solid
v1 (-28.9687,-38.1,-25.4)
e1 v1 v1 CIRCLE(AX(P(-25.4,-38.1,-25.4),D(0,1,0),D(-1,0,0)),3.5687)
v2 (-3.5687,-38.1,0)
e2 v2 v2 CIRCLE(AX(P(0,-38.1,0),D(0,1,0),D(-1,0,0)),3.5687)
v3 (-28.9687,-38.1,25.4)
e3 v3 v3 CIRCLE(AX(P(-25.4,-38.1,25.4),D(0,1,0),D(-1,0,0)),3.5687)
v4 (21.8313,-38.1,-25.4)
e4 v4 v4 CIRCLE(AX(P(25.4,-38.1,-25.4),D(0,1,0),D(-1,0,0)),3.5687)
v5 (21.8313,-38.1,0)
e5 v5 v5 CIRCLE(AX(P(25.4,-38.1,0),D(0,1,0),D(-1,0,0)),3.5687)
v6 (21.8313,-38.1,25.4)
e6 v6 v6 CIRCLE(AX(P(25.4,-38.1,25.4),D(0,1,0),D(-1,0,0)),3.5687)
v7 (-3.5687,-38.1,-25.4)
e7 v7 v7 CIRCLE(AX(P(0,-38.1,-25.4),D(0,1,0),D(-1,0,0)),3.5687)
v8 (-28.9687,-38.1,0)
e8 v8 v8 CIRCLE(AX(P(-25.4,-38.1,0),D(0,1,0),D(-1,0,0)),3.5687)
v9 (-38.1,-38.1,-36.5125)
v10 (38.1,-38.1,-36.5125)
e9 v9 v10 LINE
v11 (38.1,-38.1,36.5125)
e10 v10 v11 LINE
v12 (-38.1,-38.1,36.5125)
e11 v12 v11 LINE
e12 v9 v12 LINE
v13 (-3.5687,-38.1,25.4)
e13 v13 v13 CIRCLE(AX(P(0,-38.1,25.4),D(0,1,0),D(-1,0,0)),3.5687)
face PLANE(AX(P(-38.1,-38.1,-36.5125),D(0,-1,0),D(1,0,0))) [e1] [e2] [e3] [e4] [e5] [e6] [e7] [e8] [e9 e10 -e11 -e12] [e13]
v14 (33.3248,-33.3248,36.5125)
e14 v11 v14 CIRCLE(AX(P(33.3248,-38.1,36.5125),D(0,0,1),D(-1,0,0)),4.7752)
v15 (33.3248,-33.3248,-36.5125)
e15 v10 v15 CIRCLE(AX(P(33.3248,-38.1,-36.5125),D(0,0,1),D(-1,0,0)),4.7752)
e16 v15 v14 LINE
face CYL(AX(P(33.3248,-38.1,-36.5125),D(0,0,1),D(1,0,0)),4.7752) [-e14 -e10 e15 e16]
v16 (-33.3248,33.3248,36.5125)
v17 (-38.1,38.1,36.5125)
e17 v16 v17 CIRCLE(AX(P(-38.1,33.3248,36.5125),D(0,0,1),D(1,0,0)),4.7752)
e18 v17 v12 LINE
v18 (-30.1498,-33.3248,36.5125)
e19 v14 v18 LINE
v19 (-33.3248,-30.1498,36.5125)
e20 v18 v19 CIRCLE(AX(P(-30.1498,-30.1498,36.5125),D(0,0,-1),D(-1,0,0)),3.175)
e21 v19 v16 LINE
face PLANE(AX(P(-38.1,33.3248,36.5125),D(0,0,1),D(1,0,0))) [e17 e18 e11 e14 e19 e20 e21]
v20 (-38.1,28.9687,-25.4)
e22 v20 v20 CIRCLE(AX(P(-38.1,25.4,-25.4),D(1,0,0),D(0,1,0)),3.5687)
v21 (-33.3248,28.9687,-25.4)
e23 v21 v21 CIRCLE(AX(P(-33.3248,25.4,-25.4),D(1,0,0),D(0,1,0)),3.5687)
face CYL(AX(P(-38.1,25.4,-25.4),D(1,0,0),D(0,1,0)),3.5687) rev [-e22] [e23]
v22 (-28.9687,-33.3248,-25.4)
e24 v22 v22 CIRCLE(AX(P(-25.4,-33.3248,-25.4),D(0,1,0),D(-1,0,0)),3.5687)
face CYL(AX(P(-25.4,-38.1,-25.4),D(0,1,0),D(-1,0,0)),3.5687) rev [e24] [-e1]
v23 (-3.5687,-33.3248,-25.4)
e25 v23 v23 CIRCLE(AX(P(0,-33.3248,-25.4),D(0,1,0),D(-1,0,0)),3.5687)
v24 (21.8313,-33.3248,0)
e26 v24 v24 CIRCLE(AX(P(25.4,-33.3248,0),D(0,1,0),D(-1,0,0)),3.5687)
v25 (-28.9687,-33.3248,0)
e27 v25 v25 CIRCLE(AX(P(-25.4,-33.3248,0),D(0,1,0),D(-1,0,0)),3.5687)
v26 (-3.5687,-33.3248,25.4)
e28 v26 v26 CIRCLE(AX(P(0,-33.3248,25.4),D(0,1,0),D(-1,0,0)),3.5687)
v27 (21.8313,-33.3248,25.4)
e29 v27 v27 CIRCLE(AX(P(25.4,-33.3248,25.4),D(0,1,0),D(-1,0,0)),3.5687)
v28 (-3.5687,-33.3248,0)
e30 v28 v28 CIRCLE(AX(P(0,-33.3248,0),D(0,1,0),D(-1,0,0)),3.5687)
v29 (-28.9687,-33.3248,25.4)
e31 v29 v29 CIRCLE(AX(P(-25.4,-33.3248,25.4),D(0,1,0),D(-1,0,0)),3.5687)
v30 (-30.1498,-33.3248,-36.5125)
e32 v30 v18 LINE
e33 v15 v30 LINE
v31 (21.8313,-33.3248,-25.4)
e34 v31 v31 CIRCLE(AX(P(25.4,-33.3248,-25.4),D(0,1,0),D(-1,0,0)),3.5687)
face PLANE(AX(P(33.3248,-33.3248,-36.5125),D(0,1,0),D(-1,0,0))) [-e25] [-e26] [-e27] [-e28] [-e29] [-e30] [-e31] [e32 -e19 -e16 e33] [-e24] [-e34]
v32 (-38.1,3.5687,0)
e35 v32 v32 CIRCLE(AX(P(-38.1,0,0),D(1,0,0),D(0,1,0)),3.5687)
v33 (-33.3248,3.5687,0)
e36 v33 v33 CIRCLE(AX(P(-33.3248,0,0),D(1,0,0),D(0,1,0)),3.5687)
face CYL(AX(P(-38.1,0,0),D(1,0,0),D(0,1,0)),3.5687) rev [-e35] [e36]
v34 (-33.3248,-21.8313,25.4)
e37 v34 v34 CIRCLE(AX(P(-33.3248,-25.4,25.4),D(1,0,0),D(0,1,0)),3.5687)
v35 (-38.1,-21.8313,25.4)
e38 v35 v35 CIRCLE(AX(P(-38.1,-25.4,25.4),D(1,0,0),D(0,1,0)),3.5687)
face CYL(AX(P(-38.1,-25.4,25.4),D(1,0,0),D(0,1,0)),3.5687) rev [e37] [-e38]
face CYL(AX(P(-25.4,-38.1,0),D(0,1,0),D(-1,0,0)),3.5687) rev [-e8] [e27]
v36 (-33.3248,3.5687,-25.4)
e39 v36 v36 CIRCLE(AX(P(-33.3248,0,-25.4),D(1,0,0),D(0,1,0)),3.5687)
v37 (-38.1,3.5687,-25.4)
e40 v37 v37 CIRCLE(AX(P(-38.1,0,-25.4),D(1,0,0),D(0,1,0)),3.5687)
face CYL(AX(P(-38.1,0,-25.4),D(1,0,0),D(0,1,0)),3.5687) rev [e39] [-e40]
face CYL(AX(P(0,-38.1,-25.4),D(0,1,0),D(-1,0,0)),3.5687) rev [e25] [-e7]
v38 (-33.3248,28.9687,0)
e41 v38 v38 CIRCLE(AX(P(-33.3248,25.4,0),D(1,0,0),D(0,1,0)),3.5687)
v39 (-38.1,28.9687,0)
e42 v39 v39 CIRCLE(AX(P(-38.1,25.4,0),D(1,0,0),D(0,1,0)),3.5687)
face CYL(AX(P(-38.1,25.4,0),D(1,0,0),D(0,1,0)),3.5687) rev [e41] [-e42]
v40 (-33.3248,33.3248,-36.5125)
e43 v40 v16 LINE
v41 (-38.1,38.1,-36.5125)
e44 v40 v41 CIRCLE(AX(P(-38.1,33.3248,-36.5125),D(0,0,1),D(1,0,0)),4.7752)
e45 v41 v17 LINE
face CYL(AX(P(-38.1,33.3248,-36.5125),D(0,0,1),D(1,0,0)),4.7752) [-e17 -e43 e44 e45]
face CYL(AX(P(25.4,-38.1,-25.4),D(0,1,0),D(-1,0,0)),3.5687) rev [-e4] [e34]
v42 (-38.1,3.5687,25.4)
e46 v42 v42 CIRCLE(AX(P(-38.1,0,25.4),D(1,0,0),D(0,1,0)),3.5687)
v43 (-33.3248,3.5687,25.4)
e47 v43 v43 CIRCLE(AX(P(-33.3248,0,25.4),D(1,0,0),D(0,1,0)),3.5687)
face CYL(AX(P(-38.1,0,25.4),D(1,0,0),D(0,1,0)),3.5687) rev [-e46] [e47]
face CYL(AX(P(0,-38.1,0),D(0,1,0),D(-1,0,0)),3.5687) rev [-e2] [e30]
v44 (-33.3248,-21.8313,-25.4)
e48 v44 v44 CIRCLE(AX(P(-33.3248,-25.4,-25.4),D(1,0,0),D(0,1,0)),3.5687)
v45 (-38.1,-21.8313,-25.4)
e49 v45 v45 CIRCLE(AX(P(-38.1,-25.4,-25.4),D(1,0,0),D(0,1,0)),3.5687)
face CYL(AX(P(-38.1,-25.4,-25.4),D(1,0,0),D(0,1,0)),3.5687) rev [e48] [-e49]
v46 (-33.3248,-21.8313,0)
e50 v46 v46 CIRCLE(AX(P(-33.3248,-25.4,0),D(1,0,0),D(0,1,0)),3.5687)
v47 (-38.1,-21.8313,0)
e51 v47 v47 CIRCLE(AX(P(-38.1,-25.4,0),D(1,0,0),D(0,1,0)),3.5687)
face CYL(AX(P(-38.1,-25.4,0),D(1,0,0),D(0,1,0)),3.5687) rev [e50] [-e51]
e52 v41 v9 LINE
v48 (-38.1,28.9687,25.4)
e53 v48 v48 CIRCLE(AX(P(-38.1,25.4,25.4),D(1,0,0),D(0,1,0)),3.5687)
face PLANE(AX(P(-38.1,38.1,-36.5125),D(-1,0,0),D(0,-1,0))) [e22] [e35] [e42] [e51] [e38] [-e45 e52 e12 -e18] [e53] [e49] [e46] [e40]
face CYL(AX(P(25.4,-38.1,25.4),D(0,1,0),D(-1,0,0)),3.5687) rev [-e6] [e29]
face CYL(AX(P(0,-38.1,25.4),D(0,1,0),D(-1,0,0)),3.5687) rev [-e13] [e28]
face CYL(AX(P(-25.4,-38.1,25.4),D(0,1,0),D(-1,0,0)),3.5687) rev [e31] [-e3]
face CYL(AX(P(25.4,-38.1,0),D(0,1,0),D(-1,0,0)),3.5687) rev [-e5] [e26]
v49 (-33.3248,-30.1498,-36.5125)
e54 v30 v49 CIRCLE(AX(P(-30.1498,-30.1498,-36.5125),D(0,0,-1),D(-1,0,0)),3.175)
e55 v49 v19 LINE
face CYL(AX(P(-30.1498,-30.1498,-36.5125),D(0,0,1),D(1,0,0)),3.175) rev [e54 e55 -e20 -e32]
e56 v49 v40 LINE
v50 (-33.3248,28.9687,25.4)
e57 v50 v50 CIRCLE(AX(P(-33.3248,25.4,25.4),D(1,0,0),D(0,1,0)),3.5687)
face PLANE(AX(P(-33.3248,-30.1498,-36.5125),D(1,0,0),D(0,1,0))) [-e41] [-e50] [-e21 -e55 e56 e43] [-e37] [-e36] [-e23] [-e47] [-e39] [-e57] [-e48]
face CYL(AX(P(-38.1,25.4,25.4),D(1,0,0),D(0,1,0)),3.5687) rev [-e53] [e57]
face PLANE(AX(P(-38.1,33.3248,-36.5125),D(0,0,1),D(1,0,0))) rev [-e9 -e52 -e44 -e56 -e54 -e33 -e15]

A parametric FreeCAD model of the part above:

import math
import FreeCAD as App
import Part
import Sketcher
Q = App.Units.Quantity

doc = App.newDocument("Part")
params = doc.addObject("Spreadsheet::Sheet", "Params")
for row, (alias, value) in enumerate([
    ("sketch1_width", "3 in"),
    ("sketch1_radius", "0.188 in"),
    ("sketch1_radius2", "0.125 in"),
    ("pad1_length", "1.4375 in"),
    ("pad1_length2", "1.4375 in"),
    ("sketch2_diameter", "0.281 in"),
    ("sketch3_diameter", "0.281 in"),
], start=1):
    params.set(f"A{row}", alias)
    params.set(f"B{row}", "=" + value)
    params.setAlias(f"B{row}", alias)

body = doc.addObject("PartDesign::Body", "Body")

# Sketch on XY plane
sketch1 = body.newObject("Sketcher::SketchObject", "Sketch")
sketch1.AttachmentSupport = (doc.getObject("XY_Plane"), [""])
sketch1.MapMode = "FlatFace"
sketch1.addGeometry([
    Part.LineSegment(App.Vector(-38.1, 38.1, 0), App.Vector(-38.1, -38.1, 0)),  # 0
    Part.LineSegment(App.Vector(-38.1, -38.1, 0), App.Vector(38.1, -38.1, 0)),  # 1
    Part.ArcOfCircle(Part.Circle(App.Vector(33.3, -38.1, 0), App.Vector(0, 0, 1), 4.8), math.radians(0), math.radians(90)),  # 2
    Part.LineSegment(App.Vector(33.3, -33.3, 0), App.Vector(-30.1, -33.3, 0)),  # 3
    Part.ArcOfCircle(Part.Circle(App.Vector(-30.1, -30.1, 0), App.Vector(0, 0, 1), 3.2), math.radians(-180), math.radians(-90)),  # 4
    Part.LineSegment(App.Vector(-33.3, -30.1, 0), App.Vector(-33.3, 33.3, 0)),  # 5
    Part.ArcOfCircle(Part.Circle(App.Vector(-38.1, 33.3, 0), App.Vector(0, 0, 1), 4.8), math.radians(0), math.radians(90)),  # 6
], False)
sketch1.addConstraint([
    Sketcher.Constraint("Coincident", 0, 2, 1, 1),
    Sketcher.Constraint("Coincident", 1, 2, 2, 1),
    Sketcher.Constraint("Tangent", 2, 2, 3, 1),
    Sketcher.Constraint("Tangent", 3, 2, 4, 2),
    Sketcher.Constraint("Tangent", 4, 1, 5, 1),
    Sketcher.Constraint("Tangent", 5, 2, 6, 1),
    Sketcher.Constraint("Coincident", 6, 2, 0, 1),
    Sketcher.Constraint("Vertical", 0),
    Sketcher.Constraint("Horizontal", 1),
    Sketcher.Constraint("Horizontal", 3),
    Sketcher.Constraint("Vertical", 5),
    Sketcher.Constraint("Equal", 2, 6),
    Sketcher.Constraint("Symmetric", 2, 2, 5, 2, -1, 1),
    Sketcher.Constraint("Symmetric", 1, 2, 6, 2, -1, 1),
    Sketcher.Constraint("Equal", 1, 0),
    Sketcher.Constraint("DistanceX", 1, 1, 1, 2, Q("3 in")),
    Sketcher.Constraint("Radius", 2, Q("0.188 in")),
    Sketcher.Constraint("Radius", 4, Q("0.125 in")),
])
sketch1.setExpression("Constraints[15]", "Params.sketch1_width")
sketch1.setExpression("Constraints[16]", "Params.sketch1_radius")
sketch1.setExpression("Constraints[17]", "Params.sketch1_radius2")
pad1 = body.newObject("PartDesign::Pad", "Pad")
pad1.Profile = sketch1
pad1.Type = "TwoLengths"
pad1.setExpression("Length", "Params.pad1_length")
pad1.setExpression("Length2", "Params.pad1_length2")

# Sketch on YZ plane
sketch2 = body.newObject("Sketcher::SketchObject", "Sketch001")
sketch2.AttachmentSupport = (doc.getObject("YZ_Plane"), [""])
sketch2.MapMode = "FlatFace"
sketch2.AttachmentOffset = App.Placement(App.Vector(0, 0, -1.312 * 25.4), App.Rotation())
sketch2.addGeometry([
    Part.Circle(App.Vector(-25.4, 25.4, 0), App.Vector(0, 0, 1), 3.6),  # 0
    Part.Circle(App.Vector(-25.4, 0, 0), App.Vector(0, 0, 1), 3.6),  # 1
    Part.Circle(App.Vector(-25.4, -25.4, 0), App.Vector(0, 0, 1), 3.6),  # 2
    Part.Circle(App.Vector(0, 0, 0), App.Vector(0, 0, 1), 3.6),  # 3
    Part.Circle(App.Vector(0, -25.4, 0), App.Vector(0, 0, 1), 3.6),  # 4
    Part.Circle(App.Vector(25.4, 0, 0), App.Vector(0, 0, 1), 3.6),  # 5
    Part.Circle(App.Vector(25.4, -25.4, 0), App.Vector(0, 0, 1), 3.6),  # 6
    Part.Circle(App.Vector(0, 25.4, 0), App.Vector(0, 0, 1), 3.6),  # 7
    Part.Circle(App.Vector(25.4, 25.4, 0), App.Vector(0, 0, 1), 3.6),  # 8
], False)
sketch2.addConstraint([
    Sketcher.Constraint("Coincident", 3, 3, -1, 1),
    Sketcher.Constraint("Equal", 0, 1),
    Sketcher.Constraint("Equal", 1, 2),
    Sketcher.Constraint("Equal", 2, 3),
    Sketcher.Constraint("Equal", 3, 4),
    Sketcher.Constraint("Equal", 4, 5),
    Sketcher.Constraint("Equal", 5, 6),
    Sketcher.Constraint("Equal", 6, 7),
    Sketcher.Constraint("Equal", 7, 8),
    Sketcher.Constraint("Symmetric", 1, 3, 5, 3, -1, 1),
    Sketcher.Constraint("Symmetric", 0, 3, 6, 3, -1, 1),
    Sketcher.Constraint("Symmetric", 4, 3, 7, 3, -1, 1),
    Sketcher.Constraint("Symmetric", 2, 3, 8, 3, -1, 1),
    Sketcher.Constraint("Symmetric", 2, 3, 6, 3, -2),
    Sketcher.Constraint("PointOnObject", 1, 3, -1),
    Sketcher.Constraint("PointOnObject", 4, 3, -2),
    Sketcher.Constraint("Horizontal", 2, 3, 4, 3),
    Sketcher.Constraint("Vertical", 0, 3, 1, 3),
    Sketcher.Constraint("Diameter", 0, Q("0.281 in")),
    Sketcher.Constraint("DistanceX", 0, 3, -1, 1, Q("1 in")),
    Sketcher.Constraint("DistanceY", -1, 1, 0, 3, Q("1 in")),
])
sketch2.setExpression("Constraints[18]", "Params.sketch2_diameter")
pocket1 = body.newObject("PartDesign::Pocket", "Pocket")
pocket1.Profile = sketch2
pocket1.Type = "ThroughAll"

# Sketch on XZ plane
sketch3 = body.newObject("Sketcher::SketchObject", "Sketch002")
sketch3.AttachmentSupport = (doc.getObject("XZ_Plane"), [""])
sketch3.MapMode = "FlatFace"
sketch3.AttachmentOffset = App.Placement(App.Vector(0, 0, 1.312 * 25.4), App.Rotation())
sketch3.addGeometry([
    Part.Circle(App.Vector(-25.4, 25.4, 0), App.Vector(0, 0, 1), 3.6),  # 0
    Part.Circle(App.Vector(0, 25.4, 0), App.Vector(0, 0, 1), 3.6),  # 1
    Part.Circle(App.Vector(25.4, 25.4, 0), App.Vector(0, 0, 1), 3.6),  # 2
    Part.Circle(App.Vector(0, 0, 0), App.Vector(0, 0, 1), 3.6),  # 3
    Part.Circle(App.Vector(25.4, 0, 0), App.Vector(0, 0, 1), 3.6),  # 4
    Part.Circle(App.Vector(0, -25.4, 0), App.Vector(0, 0, 1), 3.6),  # 5
    Part.Circle(App.Vector(25.4, -25.4, 0), App.Vector(0, 0, 1), 3.6),  # 6
    Part.Circle(App.Vector(-25.4, 0, 0), App.Vector(0, 0, 1), 3.6),  # 7
    Part.Circle(App.Vector(-25.4, -25.4, 0), App.Vector(0, 0, 1), 3.6),  # 8
], False)
sketch3.addConstraint([
    Sketcher.Constraint("Coincident", 3, 3, -1, 1),
    Sketcher.Constraint("Equal", 0, 1),
    Sketcher.Constraint("Equal", 1, 2),
    Sketcher.Constraint("Equal", 2, 3),
    Sketcher.Constraint("Equal", 3, 4),
    Sketcher.Constraint("Equal", 4, 5),
    Sketcher.Constraint("Equal", 5, 6),
    Sketcher.Constraint("Equal", 6, 7),
    Sketcher.Constraint("Equal", 7, 8),
    Sketcher.Constraint("Symmetric", 1, 3, 5, 3, -1, 1),
    Sketcher.Constraint("Symmetric", 0, 3, 6, 3, -1, 1),
    Sketcher.Constraint("Symmetric", 4, 3, 7, 3, -1, 1),
    Sketcher.Constraint("Symmetric", 2, 3, 8, 3, -1, 1),
    Sketcher.Constraint("Symmetric", 0, 3, 2, 3, -2),
    Sketcher.Constraint("PointOnObject", 1, 3, -2),
    Sketcher.Constraint("PointOnObject", 4, 3, -1),
    Sketcher.Constraint("Horizontal", 0, 3, 1, 3),
    Sketcher.Constraint("Vertical", 2, 3, 4, 3),
    Sketcher.Constraint("Diameter", 0, Q("0.281 in")),
    Sketcher.Constraint("DistanceX", 0, 3, -1, 1, Q("1 in")),
    Sketcher.Constraint("DistanceY", -1, 1, 0, 3, Q("1 in")),
])
sketch3.setExpression("Constraints[18]", "Params.sketch3_diameter")
pocket2 = body.newObject("PartDesign::Pocket", "Pocket001")
pocket2.Profile = sketch3
pocket2.Type = "ThroughAll"
pocket2.Reversed = True

doc.recompute()
